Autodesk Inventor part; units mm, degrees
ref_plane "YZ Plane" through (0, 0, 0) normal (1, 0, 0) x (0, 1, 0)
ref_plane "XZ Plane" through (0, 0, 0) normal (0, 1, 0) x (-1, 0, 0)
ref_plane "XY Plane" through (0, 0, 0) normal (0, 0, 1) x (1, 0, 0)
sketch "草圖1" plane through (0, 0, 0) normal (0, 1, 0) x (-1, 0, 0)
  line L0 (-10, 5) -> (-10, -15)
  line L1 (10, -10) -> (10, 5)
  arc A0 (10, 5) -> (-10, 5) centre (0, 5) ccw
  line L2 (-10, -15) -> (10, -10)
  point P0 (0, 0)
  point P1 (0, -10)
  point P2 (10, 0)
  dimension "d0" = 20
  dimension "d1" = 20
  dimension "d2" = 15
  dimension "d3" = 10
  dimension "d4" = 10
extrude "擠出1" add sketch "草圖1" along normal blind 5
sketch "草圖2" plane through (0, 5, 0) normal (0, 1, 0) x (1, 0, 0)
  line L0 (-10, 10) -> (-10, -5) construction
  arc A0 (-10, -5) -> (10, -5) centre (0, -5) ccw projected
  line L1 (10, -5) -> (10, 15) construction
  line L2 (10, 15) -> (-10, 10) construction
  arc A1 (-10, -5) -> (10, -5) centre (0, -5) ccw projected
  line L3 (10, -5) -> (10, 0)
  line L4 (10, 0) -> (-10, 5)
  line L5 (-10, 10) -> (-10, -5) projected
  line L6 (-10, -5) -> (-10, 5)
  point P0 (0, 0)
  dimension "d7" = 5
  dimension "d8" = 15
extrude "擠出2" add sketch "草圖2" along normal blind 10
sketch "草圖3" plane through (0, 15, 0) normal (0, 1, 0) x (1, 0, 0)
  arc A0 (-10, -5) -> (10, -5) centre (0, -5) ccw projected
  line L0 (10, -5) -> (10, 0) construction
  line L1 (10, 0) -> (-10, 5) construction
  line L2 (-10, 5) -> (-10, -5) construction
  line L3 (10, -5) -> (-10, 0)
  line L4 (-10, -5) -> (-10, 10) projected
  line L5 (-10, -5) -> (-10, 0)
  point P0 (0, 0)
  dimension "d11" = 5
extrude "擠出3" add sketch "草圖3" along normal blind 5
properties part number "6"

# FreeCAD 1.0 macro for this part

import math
import FreeCAD as App
import Part
import Sketcher
from FreeCAD import Vector
Q = App.Units.Quantity

doc = App.newDocument("Part")
body = doc.addObject("PartDesign::Body", "Body")

sketch1 = body.newObject("Sketcher::SketchObject", "Sketch")
sketch1.AttachmentSupport = (doc.getObject("XZ_Plane"), [""])
sketch1.MapMode = "FlatFace"
sketch1.addGeometry([
    Part.ArcOfCircle(Part.Circle(Vector(0, 5, 0), Vector(0, 0, 1), 10), math.radians(0), math.radians(180)),
    Part.LineSegment(Vector(10, 5, 0), Vector(10, -15, 0)),
    Part.LineSegment(Vector(10, -15, 0), Vector(-10, -10, 0)),
    Part.LineSegment(Vector(-10, -10, 0), Vector(-10, 5, 0)),
], False)
sketch1.addConstraint([
    Sketcher.Constraint("Tangent", 0, 1, 1, 1),
    Sketcher.Constraint("Coincident", 1, 2, 2, 1),
    Sketcher.Constraint("Coincident", 2, 2, 3, 1),
    Sketcher.Constraint("Tangent", 3, 2, 0, 2),
    Sketcher.Constraint("Vertical", 1),
    Sketcher.Constraint("Vertical", 3),
    Sketcher.Constraint("PointOnObject", 0, 3, -2),
    Sketcher.Constraint("Radius", 0, Q("10 mm")),
    Sketcher.Constraint("DistanceY", 1, 2, 1, 1, Q("20 mm")),
    Sketcher.Constraint("DistanceY", 3, 1, 3, 2, Q("15 mm")),
    Sketcher.Constraint("DistanceY", 1, 2, -1, 1, Q("15 mm")),
])
pad1 = body.newObject("PartDesign::Pad", "Pad")
pad1.Profile = sketch1
pad1.Length = 5
pad1.Reversed = True

sketch2 = body.newObject("Sketcher::SketchObject", "Sketch001")
sketch2.AttachmentSupport = (doc.getObject("XZ_Plane"), [""])
sketch2.MapMode = "FlatFace"
sketch2.AttachmentOffset = App.Placement(Vector(0, 0, -5), App.Rotation())
sketch2.addGeometry([
    Part.LineSegment(Vector(-10, -5, 0), Vector(-10, 5, 0)),
    Part.ArcOfCircle(Part.Circle(Vector(0, 5, 0), Vector(0, 0, 1), 10), math.radians(0), math.radians(180)),
    Part.LineSegment(Vector(10, 5, 0), Vector(10, 0, 0)),
    Part.LineSegment(Vector(10, 0, 0), Vector(-10, -5, 0)),
], False)
sketch2.addConstraint([
    Sketcher.Constraint("Tangent", 0, 2, 1, 2),
    Sketcher.Constraint("Tangent", 1, 1, 2, 1),
    Sketcher.Constraint("Coincident", 2, 2, 3, 1),
    Sketcher.Constraint("Coincident", 3, 2, 0, 1),
    Sketcher.Constraint("Vertical", 0),
    Sketcher.Constraint("Vertical", 2),
    Sketcher.Constraint("Symmetric", 1, 1, 3, 2, -1, 1),
    Sketcher.Constraint("PointOnObject", 2, 2, -1),
    Sketcher.Constraint("DistanceY", 2, 2, 2, 1, Q("5 mm")),
    Sketcher.Constraint("Radius", 1, Q("10 mm")),
])
pad2 = body.newObject("PartDesign::Pad", "Pad001")
pad2.Profile = sketch2
pad2.Length = 10
pad2.Reversed = True

sketch3 = body.newObject("Sketcher::SketchObject", "Sketch002")
sketch3.AttachmentSupport = (doc.getObject("XZ_Plane"), [""])
sketch3.MapMode = "FlatFace"
sketch3.AttachmentOffset = App.Placement(Vector(0, 0, -15), App.Rotation())
sketch3.addGeometry([
    Part.LineSegment(Vector(-10, 0, 0), Vector(-10, 5, 0)),
    Part.ArcOfCircle(Part.Circle(Vector(0, 5, 0), Vector(0, 0, 1), 10), math.radians(0), math.radians(180)),
    Part.LineSegment(Vector(10, 5, 0), Vector(-10, 0, 0)),
], False)
sketch3.addConstraint([
    Sketcher.Constraint("Tangent", 0, 2, 1, 2),
    Sketcher.Constraint("Coincident", 1, 1, 2, 1),
    Sketcher.Constraint("Coincident", 2, 2, 0, 1),
    Sketcher.Constraint("Vertical", 0),
    Sketcher.Constraint("Symmetric", 0, 2, 1, 1, -2),
    Sketcher.Constraint("PointOnObject", 2, 2, -1),
    Sketcher.Constraint("DistanceY", 0, 1, 0, 2, Q("5 mm")),
    Sketcher.Constraint("Radius", 1, Q("10 mm")),
])
pad3 = body.newObject("PartDesign::Pad", "Pad002")
pad3.Profile = sketch3
pad3.Length = 5
pad3.Reversed = True

doc.recompute()
